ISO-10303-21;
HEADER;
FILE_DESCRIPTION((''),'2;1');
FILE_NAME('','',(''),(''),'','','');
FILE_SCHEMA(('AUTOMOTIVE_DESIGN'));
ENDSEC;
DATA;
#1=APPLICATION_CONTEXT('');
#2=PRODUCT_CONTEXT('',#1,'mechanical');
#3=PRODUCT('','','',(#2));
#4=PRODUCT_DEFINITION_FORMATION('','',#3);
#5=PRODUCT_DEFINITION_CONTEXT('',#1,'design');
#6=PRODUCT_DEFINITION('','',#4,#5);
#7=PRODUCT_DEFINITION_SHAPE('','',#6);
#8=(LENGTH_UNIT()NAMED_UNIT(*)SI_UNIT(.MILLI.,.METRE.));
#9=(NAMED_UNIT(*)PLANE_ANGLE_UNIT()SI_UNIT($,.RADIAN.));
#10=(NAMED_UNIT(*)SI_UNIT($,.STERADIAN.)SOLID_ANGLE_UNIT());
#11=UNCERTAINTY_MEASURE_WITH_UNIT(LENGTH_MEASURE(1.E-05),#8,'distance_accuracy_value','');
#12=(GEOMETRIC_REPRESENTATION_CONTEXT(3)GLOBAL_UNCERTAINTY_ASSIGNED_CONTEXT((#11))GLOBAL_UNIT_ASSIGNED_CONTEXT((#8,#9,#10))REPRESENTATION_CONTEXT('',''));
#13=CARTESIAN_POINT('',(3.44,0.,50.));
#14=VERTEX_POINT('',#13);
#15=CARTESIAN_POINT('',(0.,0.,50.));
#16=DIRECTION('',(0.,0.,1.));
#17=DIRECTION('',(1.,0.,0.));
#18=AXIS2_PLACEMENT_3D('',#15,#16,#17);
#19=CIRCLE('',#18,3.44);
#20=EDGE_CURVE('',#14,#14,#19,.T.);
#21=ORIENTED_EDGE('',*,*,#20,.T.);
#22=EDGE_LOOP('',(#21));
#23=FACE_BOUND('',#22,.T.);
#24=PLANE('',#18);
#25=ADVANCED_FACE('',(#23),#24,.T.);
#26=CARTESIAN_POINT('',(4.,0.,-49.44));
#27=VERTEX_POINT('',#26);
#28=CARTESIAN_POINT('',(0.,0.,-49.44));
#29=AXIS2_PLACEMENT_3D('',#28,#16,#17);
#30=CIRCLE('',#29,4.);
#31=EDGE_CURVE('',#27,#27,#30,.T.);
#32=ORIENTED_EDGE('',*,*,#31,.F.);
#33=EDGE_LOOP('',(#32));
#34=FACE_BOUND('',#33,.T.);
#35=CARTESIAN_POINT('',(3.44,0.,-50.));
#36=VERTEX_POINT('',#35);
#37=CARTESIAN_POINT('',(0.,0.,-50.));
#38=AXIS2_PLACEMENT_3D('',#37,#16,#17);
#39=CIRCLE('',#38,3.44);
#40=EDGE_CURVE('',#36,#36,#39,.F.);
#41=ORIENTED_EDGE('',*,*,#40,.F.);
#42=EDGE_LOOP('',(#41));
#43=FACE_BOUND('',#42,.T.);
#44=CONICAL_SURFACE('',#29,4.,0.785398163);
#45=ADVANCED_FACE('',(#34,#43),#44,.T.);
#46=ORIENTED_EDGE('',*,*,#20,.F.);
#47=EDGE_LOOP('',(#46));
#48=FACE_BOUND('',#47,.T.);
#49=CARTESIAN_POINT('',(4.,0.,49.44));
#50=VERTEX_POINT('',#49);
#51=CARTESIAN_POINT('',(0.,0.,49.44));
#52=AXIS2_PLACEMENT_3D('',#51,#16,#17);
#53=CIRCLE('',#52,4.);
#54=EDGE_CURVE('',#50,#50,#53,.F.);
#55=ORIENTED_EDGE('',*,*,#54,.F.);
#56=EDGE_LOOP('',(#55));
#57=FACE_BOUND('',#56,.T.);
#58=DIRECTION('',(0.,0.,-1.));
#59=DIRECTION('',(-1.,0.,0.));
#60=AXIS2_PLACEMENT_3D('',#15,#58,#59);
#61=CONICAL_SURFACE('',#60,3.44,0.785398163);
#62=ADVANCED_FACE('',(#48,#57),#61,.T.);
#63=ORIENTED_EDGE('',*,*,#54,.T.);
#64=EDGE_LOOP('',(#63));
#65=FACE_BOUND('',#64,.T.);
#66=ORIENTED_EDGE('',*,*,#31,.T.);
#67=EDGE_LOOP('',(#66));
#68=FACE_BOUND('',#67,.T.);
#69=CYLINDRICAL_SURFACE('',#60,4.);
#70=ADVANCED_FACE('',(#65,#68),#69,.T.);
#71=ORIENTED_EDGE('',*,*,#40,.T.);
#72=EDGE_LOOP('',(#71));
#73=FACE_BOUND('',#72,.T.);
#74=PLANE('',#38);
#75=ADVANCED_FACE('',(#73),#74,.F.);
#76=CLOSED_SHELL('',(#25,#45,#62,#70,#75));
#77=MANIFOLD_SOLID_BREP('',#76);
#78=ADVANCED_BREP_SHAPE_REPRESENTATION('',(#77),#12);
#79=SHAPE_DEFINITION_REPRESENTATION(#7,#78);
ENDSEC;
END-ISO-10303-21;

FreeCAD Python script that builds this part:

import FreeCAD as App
import Part
import Sketcher

V = App.Vector


def edges_at(feature, points):
    """Names of the edges that pass closest to the given points."""
    edges = feature.Shape.Edges
    near = lambda p: min(range(len(edges)), key=lambda i: edges[i].distToShape(Part.Vertex(*p))[0])
    return sorted({f"Edge{near(p) + 1}" for p in points})

doc = App.newDocument("Part")
body = doc.addObject("PartDesign::Body", "Body")

# Sketch on XY plane
sketch1 = body.newObject("Sketcher::SketchObject", "Sketch")
sketch1.AttachmentSupport = (doc.getObject("XY_Plane"), [""])
sketch1.MapMode = "FlatFace"
sketch1.addGeometry(Part.Circle(V(0, 0, 0), V(0, 0, 1), 4), False)
sketch1.addConstraint(Sketcher.Constraint("Coincident", 0, 3, -1, 1))
sketch1.addConstraint(Sketcher.Constraint("Diameter", 0, 8.0))
pad1 = body.newObject("PartDesign::Pad", "Pad")
pad1.Profile = sketch1
pad1.Type = "TwoLengths"
pad1.Length = 50
pad1.Length2 = 50
doc.recompute()

chamfer = body.newObject("PartDesign::Chamfer", "Chamfer")
chamfer.Base = (pad1, edges_at(pad1, [(-4, 0, -50), (-4, 0, 50)]))
chamfer.Size = 0.56

doc.recompute()
